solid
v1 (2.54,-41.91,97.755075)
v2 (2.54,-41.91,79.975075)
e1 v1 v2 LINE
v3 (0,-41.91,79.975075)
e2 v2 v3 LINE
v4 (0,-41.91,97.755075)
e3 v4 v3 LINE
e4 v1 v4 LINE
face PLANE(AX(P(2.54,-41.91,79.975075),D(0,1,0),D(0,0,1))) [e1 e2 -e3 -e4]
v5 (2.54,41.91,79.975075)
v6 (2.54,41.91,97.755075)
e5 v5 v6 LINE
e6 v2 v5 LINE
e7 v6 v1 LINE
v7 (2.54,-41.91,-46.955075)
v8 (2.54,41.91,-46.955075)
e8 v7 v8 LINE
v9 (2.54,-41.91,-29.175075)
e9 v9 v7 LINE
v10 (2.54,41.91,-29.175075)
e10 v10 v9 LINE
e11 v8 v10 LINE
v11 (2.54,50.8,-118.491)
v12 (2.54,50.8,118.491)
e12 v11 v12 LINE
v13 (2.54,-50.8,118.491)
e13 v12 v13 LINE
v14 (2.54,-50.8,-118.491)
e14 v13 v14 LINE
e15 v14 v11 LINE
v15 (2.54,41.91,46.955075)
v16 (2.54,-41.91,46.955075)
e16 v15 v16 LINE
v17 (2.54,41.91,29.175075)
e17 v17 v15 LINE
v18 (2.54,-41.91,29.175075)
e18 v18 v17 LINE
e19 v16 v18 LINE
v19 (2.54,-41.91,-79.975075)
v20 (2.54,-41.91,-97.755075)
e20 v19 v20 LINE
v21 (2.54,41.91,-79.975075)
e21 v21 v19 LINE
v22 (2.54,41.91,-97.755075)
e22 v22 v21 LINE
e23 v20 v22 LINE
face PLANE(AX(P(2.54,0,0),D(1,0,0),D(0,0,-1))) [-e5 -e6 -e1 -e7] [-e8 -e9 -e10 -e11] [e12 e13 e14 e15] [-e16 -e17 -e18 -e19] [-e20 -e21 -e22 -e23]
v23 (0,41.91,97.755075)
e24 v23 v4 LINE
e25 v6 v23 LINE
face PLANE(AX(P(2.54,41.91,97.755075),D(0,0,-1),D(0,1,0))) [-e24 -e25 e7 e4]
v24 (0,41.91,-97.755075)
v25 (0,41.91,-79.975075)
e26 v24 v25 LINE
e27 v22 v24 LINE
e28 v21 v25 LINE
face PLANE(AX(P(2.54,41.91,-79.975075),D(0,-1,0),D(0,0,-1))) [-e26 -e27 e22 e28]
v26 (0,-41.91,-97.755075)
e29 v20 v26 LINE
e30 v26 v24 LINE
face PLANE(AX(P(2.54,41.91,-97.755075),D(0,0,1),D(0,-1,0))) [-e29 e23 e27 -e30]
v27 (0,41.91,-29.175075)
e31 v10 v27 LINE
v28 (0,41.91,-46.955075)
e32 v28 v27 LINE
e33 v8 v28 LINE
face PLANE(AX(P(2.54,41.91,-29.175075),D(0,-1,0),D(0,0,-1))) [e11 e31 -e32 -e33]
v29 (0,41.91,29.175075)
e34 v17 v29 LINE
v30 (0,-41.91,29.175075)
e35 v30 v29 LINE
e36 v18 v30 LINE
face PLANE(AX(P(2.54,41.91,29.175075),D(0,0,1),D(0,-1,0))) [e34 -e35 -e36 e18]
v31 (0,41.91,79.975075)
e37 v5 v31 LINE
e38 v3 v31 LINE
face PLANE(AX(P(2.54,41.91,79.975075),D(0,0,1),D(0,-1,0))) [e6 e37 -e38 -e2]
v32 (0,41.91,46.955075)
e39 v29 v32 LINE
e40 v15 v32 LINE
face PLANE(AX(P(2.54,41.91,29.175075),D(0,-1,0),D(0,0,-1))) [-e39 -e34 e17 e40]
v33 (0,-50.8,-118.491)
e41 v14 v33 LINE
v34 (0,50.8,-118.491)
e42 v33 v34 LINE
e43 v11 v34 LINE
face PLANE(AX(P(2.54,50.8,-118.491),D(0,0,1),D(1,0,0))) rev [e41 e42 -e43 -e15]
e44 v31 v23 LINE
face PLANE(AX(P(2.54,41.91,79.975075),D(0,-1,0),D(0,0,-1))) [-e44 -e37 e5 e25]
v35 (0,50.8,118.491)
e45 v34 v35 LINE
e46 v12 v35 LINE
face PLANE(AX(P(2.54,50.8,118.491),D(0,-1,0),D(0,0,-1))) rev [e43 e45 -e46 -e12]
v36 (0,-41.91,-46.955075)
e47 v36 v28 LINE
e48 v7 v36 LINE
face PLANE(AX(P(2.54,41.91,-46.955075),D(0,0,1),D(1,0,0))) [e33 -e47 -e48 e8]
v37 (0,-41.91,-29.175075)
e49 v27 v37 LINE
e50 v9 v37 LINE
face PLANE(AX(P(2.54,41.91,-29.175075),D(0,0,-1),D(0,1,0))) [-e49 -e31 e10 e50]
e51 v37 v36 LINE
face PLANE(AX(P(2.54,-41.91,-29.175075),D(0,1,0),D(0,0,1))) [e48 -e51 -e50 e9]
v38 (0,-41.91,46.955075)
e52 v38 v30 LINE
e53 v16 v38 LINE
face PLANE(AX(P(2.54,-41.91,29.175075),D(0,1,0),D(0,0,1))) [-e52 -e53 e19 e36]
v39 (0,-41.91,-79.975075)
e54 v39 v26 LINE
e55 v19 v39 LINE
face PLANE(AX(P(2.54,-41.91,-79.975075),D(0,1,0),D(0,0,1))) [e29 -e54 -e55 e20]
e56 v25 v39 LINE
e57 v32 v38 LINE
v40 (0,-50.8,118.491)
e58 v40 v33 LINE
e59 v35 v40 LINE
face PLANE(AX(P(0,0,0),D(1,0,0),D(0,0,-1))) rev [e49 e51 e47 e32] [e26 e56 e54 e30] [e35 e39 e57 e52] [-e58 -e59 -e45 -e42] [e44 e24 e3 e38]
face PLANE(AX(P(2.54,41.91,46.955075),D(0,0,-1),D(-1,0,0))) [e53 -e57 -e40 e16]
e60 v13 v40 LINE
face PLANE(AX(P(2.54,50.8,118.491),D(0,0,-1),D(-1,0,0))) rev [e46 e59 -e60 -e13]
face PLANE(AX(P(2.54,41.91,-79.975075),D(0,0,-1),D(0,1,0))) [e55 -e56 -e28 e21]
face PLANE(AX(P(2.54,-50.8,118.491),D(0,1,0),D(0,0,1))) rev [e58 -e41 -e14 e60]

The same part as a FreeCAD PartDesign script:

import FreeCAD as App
import Part
import Sketcher

V = App.Vector
Q = App.Units.Quantity


def add_polygon(sketch, points):
    """Adds a closed chain of lines whose ends are joined by coincident constraints."""
    first, n = sketch.GeometryCount, len(points)
    for a, b in zip(points, points[1:] + points[:1]):
        sketch.addGeometry(Part.LineSegment(App.Vector(*a, 0), App.Vector(*b, 0)), False)
    for i in range(n):
        sketch.addConstraint(Sketcher.Constraint("Coincident", first + i, 2, first + (i + 1) % n, 1))

doc = App.newDocument("Part")
params = doc.addObject("Spreadsheet::Sheet", "Params")
for row, (alias, value) in enumerate([
    ("sketch1_width", "4 in"),
    ("sketch1_width2", "3.3 in"),
    ("sketch1_height", "0.7 in"),
    ("sketch1_height2", "9.33 in"),
    ("pad1_length", "0.1 in"),
], start=1):
    params.set(f"A{row}", alias)
    params.set(f"B{row}", "=" + value)
    params.setAlias(f"B{row}", alias)

body = doc.addObject("PartDesign::Body", "Body")

sketch1 = doc.addObject("Sketcher::SketchObject", "Sketch")
body.addObject(sketch1)
sketch1.AttachmentSupport = (doc.YZ_Plane, [""])
sketch1.MapMode = "FlatFace"
add_polygon(sketch1, [(51, 118), (-51, 118), (-51, -118), (51, -118)])
add_polygon(sketch1, [(-42, 80), (-42, 98), (42, 98), (42, 80)])
add_polygon(sketch1, [(-42, 29), (-42, 47), (42, 47), (42, 29)])
add_polygon(sketch1, [(-42, -47), (-42, -29), (42, -29), (42, -47)])
add_polygon(sketch1, [(-42, -98), (-42, -80), (42, -80), (42, -98)])
sketch1.addConstraint([
    Sketcher.Constraint("Horizontal", 0),
    Sketcher.Constraint("Vertical", 1),
    Sketcher.Constraint("Horizontal", 2),
    Sketcher.Constraint("Vertical", 3),
    Sketcher.Constraint("Vertical", 4),
    Sketcher.Constraint("Horizontal", 5),
    Sketcher.Constraint("Vertical", 6),
    Sketcher.Constraint("Horizontal", 7),
    Sketcher.Constraint("Vertical", 8),
    Sketcher.Constraint("Horizontal", 9),
    Sketcher.Constraint("Vertical", 10),
    Sketcher.Constraint("Horizontal", 11),
    Sketcher.Constraint("Vertical", 12),
    Sketcher.Constraint("Horizontal", 13),
    Sketcher.Constraint("Vertical", 14),
    Sketcher.Constraint("Horizontal", 15),
    Sketcher.Constraint("Vertical", 16),
    Sketcher.Constraint("Horizontal", 17),
    Sketcher.Constraint("Vertical", 18),
    Sketcher.Constraint("Horizontal", 19),
    Sketcher.Constraint("Symmetric", 0, 2, 2, 2, -1, 1),
    Sketcher.Constraint("Symmetric", 10, 2, 12, 2, -1, 1),
    Sketcher.Constraint("Symmetric", 8, 2, 14, 2, -1, 1),
    Sketcher.Constraint("Symmetric", 6, 2, 16, 2, -1, 1),
    Sketcher.Constraint("Symmetric", 4, 2, 18, 2, -1, 1),
    Sketcher.Constraint("Vertical", 7, 2, 8, 2),
    Sketcher.Constraint("Vertical", 6, 2, 9, 2),
    Sketcher.Constraint("Vertical", 11, 2, 12, 2),
    Sketcher.Constraint("Equal", 6, 8),
    Sketcher.Constraint("DistanceX", 0, 2, 0, 1, Q("4 in")),
    Sketcher.Constraint("DistanceX", 5, 1, 5, 2, Q("3.3 in")),
    Sketcher.Constraint("DistanceY", 4, 1, 4, 2, Q("0.7 in")),
    Sketcher.Constraint("DistanceY", 8, 2, 4, 2, Q("2 in")),
    Sketcher.Constraint("DistanceY", 1, 2, 1, 1, Q("9.33 in")),
    Sketcher.Constraint("DistanceY", 12, 2, 11, 2, 58.35015),
])
sketch1.setExpression("Constraints[49]", "Params.sketch1_width")
sketch1.setExpression("Constraints[50]", "Params.sketch1_width2")
sketch1.setExpression("Constraints[51]", "Params.sketch1_height")
sketch1.setExpression("Constraints[53]", "Params.sketch1_height2")
pad1 = doc.addObject("PartDesign::Pad", "Pad")
body.addObject(pad1)
pad1.Profile = sketch1
pad1.setExpression("Length", "Params.pad1_length")

doc.recompute()
